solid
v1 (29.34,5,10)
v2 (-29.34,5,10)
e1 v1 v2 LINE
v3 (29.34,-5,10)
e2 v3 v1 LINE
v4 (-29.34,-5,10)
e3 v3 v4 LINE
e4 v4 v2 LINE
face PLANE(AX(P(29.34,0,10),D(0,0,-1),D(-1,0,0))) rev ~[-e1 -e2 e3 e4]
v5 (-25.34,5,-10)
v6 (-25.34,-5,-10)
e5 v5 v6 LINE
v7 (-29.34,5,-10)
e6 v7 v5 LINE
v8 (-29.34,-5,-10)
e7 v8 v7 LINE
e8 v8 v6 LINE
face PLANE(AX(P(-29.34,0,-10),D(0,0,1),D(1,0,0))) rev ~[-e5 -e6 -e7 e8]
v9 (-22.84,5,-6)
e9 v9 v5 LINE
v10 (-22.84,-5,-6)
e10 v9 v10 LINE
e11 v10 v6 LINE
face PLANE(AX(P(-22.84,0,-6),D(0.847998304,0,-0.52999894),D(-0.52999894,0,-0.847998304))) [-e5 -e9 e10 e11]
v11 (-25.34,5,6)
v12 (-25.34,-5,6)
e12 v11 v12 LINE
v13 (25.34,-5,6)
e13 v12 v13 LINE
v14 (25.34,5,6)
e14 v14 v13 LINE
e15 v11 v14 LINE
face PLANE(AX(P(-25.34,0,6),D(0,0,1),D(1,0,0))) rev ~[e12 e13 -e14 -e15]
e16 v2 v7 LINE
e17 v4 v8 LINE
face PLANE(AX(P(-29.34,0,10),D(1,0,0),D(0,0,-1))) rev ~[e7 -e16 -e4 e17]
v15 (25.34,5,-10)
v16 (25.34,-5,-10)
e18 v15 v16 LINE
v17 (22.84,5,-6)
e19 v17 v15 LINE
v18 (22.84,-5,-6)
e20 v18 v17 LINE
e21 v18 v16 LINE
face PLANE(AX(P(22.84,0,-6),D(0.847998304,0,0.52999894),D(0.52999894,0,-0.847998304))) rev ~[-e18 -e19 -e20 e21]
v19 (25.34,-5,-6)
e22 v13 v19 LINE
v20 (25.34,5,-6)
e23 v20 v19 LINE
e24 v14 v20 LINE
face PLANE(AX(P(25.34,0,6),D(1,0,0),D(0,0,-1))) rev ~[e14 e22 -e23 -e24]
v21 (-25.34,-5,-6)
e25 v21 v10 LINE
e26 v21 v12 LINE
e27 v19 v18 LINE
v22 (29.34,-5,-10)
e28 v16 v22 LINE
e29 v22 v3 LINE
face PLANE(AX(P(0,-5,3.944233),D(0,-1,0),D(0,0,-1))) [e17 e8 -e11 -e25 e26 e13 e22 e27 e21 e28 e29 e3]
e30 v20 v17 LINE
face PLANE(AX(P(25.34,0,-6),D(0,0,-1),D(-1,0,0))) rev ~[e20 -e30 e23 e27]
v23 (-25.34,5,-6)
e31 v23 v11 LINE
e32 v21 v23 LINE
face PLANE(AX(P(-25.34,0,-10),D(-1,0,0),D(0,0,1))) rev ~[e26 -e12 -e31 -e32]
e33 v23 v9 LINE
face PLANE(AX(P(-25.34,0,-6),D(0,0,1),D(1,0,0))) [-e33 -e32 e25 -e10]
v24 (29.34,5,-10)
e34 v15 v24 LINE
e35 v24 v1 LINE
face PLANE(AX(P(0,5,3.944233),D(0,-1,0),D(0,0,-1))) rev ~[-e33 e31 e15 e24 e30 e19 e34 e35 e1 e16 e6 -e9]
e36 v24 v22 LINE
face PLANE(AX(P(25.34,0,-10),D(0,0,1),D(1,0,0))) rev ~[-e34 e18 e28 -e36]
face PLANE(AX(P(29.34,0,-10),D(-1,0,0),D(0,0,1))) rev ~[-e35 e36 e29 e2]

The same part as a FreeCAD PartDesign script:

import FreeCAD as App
import Part
import Sketcher
from FreeCAD import Vector
Q = App.Units.Quantity

doc = App.newDocument("Part")
body = doc.addObject("PartDesign::Body", "Body")

# Sketch on XZ plane
sketch1 = body.newObject("Sketcher::SketchObject", "Sketch")
sketch1.AttachmentSupport = (doc.getObject("XZ_Plane"), [""])
sketch1.MapMode = "FlatFace"
sketch1.addGeometry([
    Part.LineSegment(Vector(-29.3, 10, 0), Vector(-29.3, -10, 0)),  # 0
    Part.LineSegment(Vector(-29.3, -10, 0), Vector(-25.3, -10, 0)),  # 1
    Part.LineSegment(Vector(-25.3, -10, 0), Vector(-25.3, 6, 0)),  # 2
    Part.LineSegment(Vector(-25.3, 6, 0), Vector(25.3, 6, 0)),  # 3
    Part.LineSegment(Vector(25.3, 6, 0), Vector(25.3, -10, 0)),  # 4
    Part.LineSegment(Vector(25.3, -10, 0), Vector(29.3, -10, 0)),  # 5
    Part.LineSegment(Vector(29.3, -10, 0), Vector(29.3, 10, 0)),  # 6
    Part.LineSegment(Vector(29.3, 10, 0), Vector(-29.3, 10, 0)),  # 7
], False)
sketch1.addConstraint([
    Sketcher.Constraint("Coincident", 0, 2, 1, 1),
    Sketcher.Constraint("Coincident", 1, 2, 2, 1),
    Sketcher.Constraint("Coincident", 2, 2, 3, 1),
    Sketcher.Constraint("Coincident", 3, 2, 4, 1),
    Sketcher.Constraint("Coincident", 4, 2, 5, 1),
    Sketcher.Constraint("Coincident", 5, 2, 6, 1),
    Sketcher.Constraint("Coincident", 6, 2, 7, 1),
    Sketcher.Constraint("Coincident", 7, 2, 0, 1),
    Sketcher.Constraint("Vertical", 0),
    Sketcher.Constraint("Horizontal", 1),
    Sketcher.Constraint("Vertical", 2),
    Sketcher.Constraint("Horizontal", 3),
    Sketcher.Constraint("Vertical", 4),
    Sketcher.Constraint("Horizontal", 5),
    Sketcher.Constraint("Vertical", 6),
    Sketcher.Constraint("Horizontal", 7),
    Sketcher.Constraint("Symmetric", 0, 2, 6, 2, -1, 1),
    Sketcher.Constraint("Symmetric", 1, 2, 4, 2, -2),
    Sketcher.Constraint("DistanceX", 1, 1, 1, 2, Q("4 mm")),
    Sketcher.Constraint("DistanceY", 0, 2, 0, 1, Q("20 mm")),
    Sketcher.Constraint("DistanceY", 2, 1, 2, 2, Q("16 mm")),
    Sketcher.Constraint("DistanceX", 0, 2, -1, 1, Q("29.34 mm")),
])
pad1 = body.newObject("PartDesign::Pad", "Pad")
pad1.Profile = sketch1
pad1.Length = 10
pad1.Midplane = True

# Sketch on XZ plane
sketch2 = body.newObject("Sketcher::SketchObject", "Sketch001")
sketch2.AttachmentSupport = (doc.getObject("XZ_Plane"), [""])
sketch2.MapMode = "FlatFace"
sketch2.addGeometry([
    Part.LineSegment(Vector(-25.3, -6, 0), Vector(-25.3, -10, 0)),
    Part.LineSegment(Vector(-25.3, -10, 0), Vector(-22.8, -6, 0)),
    Part.LineSegment(Vector(-22.8, -6, 0), Vector(-25.3, -6, 0)),
], False)
sketch2.addConstraint([
    Sketcher.Constraint("Coincident", 0, 2, 1, 1),
    Sketcher.Constraint("Coincident", 1, 2, 2, 1),
    Sketcher.Constraint("Coincident", 2, 2, 0, 1),
    Sketcher.Constraint("Vertical", 0),
    Sketcher.Constraint("Horizontal", 2),
    Sketcher.Constraint("DistanceY", 0, 2, 0, 1, Q("4 mm")),
    Sketcher.Constraint("DistanceX", 0, 2, -1, 1, Q("25.34 mm")),
    Sketcher.Constraint("DistanceX", 2, 2, 2, 1, Q("2.5 mm")),
    Sketcher.Constraint("DistanceY", 0, 2, -1, 1, Q("10 mm")),
])
pad2 = body.newObject("PartDesign::Pad", "Pad001")
pad2.Profile = sketch2
pad2.Length = 10
pad2.Midplane = True

# Sketch on XZ plane
sketch3 = body.newObject("Sketcher::SketchObject", "Sketch002")
sketch3.AttachmentSupport = (doc.getObject("XZ_Plane"), [""])
sketch3.MapMode = "FlatFace"
sketch3.addGeometry([
    Part.LineSegment(Vector(22.8, -6, 0), Vector(25.3, -10, 0)),
    Part.LineSegment(Vector(25.3, -10, 0), Vector(25.3, -6, 0)),
    Part.LineSegment(Vector(25.3, -6, 0), Vector(22.8, -6, 0)),
], False)
sketch3.addConstraint([
    Sketcher.Constraint("Coincident", 0, 2, 1, 1),
    Sketcher.Constraint("Coincident", 1, 2, 2, 1),
    Sketcher.Constraint("Coincident", 2, 2, 0, 1),
    Sketcher.Constraint("Vertical", 1),
    Sketcher.Constraint("Horizontal", 2),
    Sketcher.Constraint("DistanceY", 1, 1, 1, 2, Q("4 mm")),
    Sketcher.Constraint("DistanceX", -1, 1, 0, 2, Q("25.34 mm")),
    Sketcher.Constraint("DistanceX", 2, 2, 2, 1, Q("2.5 mm")),
    Sketcher.Constraint("DistanceY", 0, 2, -1, 1, Q("10 mm")),
])
pad3 = body.newObject("PartDesign::Pad", "Pad002")
pad3.Profile = sketch3
pad3.Length = 10
pad3.Midplane = True

doc.recompute()
